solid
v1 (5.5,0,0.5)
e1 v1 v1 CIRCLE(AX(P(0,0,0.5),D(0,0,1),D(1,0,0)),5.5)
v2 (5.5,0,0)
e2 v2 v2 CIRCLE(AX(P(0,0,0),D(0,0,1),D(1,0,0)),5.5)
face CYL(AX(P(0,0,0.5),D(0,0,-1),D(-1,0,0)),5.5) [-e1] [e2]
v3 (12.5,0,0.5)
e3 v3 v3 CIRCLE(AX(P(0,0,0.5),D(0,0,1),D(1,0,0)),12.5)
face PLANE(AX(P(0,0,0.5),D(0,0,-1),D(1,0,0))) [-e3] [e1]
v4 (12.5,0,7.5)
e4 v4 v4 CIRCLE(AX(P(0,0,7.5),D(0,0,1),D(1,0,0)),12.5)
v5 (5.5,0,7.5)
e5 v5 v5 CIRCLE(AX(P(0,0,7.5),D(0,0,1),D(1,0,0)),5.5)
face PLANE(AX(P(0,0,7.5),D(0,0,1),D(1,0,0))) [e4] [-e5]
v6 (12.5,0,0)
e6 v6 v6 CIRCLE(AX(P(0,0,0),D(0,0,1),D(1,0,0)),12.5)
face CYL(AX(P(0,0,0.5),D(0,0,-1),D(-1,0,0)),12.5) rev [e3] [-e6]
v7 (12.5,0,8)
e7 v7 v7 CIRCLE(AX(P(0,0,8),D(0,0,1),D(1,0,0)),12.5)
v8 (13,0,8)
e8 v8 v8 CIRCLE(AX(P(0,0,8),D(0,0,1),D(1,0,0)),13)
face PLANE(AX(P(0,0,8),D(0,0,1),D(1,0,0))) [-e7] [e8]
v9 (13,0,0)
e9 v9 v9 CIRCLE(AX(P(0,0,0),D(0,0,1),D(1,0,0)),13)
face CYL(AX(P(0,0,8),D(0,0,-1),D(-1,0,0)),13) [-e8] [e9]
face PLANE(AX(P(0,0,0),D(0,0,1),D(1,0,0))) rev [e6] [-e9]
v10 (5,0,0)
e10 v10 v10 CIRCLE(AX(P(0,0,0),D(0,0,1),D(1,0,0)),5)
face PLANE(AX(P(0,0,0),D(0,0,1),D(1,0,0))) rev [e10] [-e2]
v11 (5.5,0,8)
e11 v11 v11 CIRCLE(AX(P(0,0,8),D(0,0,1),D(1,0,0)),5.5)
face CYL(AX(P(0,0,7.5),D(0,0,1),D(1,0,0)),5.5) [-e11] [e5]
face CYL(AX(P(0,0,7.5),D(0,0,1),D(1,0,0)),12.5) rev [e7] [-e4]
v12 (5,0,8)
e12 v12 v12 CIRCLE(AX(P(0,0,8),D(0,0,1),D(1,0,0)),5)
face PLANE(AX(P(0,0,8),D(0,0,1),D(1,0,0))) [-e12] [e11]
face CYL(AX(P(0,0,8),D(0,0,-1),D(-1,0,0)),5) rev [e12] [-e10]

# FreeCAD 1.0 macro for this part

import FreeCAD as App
import Part
import Sketcher

doc = App.newDocument("Part")
body = doc.addObject("PartDesign::Body", "Body")

sketch1 = body.newObject("Sketcher::SketchObject", "Sketch")
sketch1.AttachmentSupport = (doc.getObject("XY_Plane"), [""])
sketch1.MapMode = "FlatFace"
sketch1.addGeometry([
    Part.Circle(App.Vector(0, 0, 0), App.Vector(0, 0, 1), 13),
    Part.Circle(App.Vector(0, 0, 0), App.Vector(0, 0, 1), 5),
], False)
sketch1.addConstraint([
    Sketcher.Constraint("Coincident", 0, 3, -1, 1),
    Sketcher.Constraint("Coincident", 1, 3, -1, 1),
    Sketcher.Constraint("Diameter", 0, 26.0),
    Sketcher.Constraint("Diameter", 1, 10.0),
])
pad1 = body.newObject("PartDesign::Pad", "Pad")
pad1.Profile = sketch1
pad1.Length = 8

sketch2 = body.newObject("Sketcher::SketchObject", "Sketch001")
sketch2.AttachmentSupport = (doc.getObject("XY_Plane"), [""])
sketch2.MapMode = "FlatFace"
sketch2.AttachmentOffset = App.Placement(App.Vector(0, 0, 8), App.Rotation())
sketch2.addGeometry([
    Part.Circle(App.Vector(0, 0, 0), App.Vector(0, 0, 1), 12),
    Part.Circle(App.Vector(0, 0, 0), App.Vector(0, 0, 1), 6),
], False)
sketch2.addConstraint([
    Sketcher.Constraint("Coincident", 0, 3, -1, 1),
    Sketcher.Constraint("Coincident", 1, 3, -1, 1),
    Sketcher.Constraint("Diameter", 0, 25.0),
    Sketcher.Constraint("Diameter", 1, 11.0),
])
pocket1 = body.newObject("PartDesign::Pocket", "Pocket")
pocket1.Profile = sketch2
pocket1.Length = 0.5
doc.recompute()

datumplane = body.newObject("PartDesign::Plane", "DatumPlane")
datumplane.AttachmentSupport = (doc.getObject("XY_Plane"), [""])
datumplane.MapMode = "FlatFace"
datumplane.AttachmentOffset = App.Placement(App.Vector(0, 0, 4), App.Rotation())
mirrored = body.newObject("PartDesign::Mirrored", "Mirrored")
mirrored.Originals = [pocket1]
mirrored.MirrorPlane = (datumplane, [""])
body.Tip = mirrored

doc.recompute()
